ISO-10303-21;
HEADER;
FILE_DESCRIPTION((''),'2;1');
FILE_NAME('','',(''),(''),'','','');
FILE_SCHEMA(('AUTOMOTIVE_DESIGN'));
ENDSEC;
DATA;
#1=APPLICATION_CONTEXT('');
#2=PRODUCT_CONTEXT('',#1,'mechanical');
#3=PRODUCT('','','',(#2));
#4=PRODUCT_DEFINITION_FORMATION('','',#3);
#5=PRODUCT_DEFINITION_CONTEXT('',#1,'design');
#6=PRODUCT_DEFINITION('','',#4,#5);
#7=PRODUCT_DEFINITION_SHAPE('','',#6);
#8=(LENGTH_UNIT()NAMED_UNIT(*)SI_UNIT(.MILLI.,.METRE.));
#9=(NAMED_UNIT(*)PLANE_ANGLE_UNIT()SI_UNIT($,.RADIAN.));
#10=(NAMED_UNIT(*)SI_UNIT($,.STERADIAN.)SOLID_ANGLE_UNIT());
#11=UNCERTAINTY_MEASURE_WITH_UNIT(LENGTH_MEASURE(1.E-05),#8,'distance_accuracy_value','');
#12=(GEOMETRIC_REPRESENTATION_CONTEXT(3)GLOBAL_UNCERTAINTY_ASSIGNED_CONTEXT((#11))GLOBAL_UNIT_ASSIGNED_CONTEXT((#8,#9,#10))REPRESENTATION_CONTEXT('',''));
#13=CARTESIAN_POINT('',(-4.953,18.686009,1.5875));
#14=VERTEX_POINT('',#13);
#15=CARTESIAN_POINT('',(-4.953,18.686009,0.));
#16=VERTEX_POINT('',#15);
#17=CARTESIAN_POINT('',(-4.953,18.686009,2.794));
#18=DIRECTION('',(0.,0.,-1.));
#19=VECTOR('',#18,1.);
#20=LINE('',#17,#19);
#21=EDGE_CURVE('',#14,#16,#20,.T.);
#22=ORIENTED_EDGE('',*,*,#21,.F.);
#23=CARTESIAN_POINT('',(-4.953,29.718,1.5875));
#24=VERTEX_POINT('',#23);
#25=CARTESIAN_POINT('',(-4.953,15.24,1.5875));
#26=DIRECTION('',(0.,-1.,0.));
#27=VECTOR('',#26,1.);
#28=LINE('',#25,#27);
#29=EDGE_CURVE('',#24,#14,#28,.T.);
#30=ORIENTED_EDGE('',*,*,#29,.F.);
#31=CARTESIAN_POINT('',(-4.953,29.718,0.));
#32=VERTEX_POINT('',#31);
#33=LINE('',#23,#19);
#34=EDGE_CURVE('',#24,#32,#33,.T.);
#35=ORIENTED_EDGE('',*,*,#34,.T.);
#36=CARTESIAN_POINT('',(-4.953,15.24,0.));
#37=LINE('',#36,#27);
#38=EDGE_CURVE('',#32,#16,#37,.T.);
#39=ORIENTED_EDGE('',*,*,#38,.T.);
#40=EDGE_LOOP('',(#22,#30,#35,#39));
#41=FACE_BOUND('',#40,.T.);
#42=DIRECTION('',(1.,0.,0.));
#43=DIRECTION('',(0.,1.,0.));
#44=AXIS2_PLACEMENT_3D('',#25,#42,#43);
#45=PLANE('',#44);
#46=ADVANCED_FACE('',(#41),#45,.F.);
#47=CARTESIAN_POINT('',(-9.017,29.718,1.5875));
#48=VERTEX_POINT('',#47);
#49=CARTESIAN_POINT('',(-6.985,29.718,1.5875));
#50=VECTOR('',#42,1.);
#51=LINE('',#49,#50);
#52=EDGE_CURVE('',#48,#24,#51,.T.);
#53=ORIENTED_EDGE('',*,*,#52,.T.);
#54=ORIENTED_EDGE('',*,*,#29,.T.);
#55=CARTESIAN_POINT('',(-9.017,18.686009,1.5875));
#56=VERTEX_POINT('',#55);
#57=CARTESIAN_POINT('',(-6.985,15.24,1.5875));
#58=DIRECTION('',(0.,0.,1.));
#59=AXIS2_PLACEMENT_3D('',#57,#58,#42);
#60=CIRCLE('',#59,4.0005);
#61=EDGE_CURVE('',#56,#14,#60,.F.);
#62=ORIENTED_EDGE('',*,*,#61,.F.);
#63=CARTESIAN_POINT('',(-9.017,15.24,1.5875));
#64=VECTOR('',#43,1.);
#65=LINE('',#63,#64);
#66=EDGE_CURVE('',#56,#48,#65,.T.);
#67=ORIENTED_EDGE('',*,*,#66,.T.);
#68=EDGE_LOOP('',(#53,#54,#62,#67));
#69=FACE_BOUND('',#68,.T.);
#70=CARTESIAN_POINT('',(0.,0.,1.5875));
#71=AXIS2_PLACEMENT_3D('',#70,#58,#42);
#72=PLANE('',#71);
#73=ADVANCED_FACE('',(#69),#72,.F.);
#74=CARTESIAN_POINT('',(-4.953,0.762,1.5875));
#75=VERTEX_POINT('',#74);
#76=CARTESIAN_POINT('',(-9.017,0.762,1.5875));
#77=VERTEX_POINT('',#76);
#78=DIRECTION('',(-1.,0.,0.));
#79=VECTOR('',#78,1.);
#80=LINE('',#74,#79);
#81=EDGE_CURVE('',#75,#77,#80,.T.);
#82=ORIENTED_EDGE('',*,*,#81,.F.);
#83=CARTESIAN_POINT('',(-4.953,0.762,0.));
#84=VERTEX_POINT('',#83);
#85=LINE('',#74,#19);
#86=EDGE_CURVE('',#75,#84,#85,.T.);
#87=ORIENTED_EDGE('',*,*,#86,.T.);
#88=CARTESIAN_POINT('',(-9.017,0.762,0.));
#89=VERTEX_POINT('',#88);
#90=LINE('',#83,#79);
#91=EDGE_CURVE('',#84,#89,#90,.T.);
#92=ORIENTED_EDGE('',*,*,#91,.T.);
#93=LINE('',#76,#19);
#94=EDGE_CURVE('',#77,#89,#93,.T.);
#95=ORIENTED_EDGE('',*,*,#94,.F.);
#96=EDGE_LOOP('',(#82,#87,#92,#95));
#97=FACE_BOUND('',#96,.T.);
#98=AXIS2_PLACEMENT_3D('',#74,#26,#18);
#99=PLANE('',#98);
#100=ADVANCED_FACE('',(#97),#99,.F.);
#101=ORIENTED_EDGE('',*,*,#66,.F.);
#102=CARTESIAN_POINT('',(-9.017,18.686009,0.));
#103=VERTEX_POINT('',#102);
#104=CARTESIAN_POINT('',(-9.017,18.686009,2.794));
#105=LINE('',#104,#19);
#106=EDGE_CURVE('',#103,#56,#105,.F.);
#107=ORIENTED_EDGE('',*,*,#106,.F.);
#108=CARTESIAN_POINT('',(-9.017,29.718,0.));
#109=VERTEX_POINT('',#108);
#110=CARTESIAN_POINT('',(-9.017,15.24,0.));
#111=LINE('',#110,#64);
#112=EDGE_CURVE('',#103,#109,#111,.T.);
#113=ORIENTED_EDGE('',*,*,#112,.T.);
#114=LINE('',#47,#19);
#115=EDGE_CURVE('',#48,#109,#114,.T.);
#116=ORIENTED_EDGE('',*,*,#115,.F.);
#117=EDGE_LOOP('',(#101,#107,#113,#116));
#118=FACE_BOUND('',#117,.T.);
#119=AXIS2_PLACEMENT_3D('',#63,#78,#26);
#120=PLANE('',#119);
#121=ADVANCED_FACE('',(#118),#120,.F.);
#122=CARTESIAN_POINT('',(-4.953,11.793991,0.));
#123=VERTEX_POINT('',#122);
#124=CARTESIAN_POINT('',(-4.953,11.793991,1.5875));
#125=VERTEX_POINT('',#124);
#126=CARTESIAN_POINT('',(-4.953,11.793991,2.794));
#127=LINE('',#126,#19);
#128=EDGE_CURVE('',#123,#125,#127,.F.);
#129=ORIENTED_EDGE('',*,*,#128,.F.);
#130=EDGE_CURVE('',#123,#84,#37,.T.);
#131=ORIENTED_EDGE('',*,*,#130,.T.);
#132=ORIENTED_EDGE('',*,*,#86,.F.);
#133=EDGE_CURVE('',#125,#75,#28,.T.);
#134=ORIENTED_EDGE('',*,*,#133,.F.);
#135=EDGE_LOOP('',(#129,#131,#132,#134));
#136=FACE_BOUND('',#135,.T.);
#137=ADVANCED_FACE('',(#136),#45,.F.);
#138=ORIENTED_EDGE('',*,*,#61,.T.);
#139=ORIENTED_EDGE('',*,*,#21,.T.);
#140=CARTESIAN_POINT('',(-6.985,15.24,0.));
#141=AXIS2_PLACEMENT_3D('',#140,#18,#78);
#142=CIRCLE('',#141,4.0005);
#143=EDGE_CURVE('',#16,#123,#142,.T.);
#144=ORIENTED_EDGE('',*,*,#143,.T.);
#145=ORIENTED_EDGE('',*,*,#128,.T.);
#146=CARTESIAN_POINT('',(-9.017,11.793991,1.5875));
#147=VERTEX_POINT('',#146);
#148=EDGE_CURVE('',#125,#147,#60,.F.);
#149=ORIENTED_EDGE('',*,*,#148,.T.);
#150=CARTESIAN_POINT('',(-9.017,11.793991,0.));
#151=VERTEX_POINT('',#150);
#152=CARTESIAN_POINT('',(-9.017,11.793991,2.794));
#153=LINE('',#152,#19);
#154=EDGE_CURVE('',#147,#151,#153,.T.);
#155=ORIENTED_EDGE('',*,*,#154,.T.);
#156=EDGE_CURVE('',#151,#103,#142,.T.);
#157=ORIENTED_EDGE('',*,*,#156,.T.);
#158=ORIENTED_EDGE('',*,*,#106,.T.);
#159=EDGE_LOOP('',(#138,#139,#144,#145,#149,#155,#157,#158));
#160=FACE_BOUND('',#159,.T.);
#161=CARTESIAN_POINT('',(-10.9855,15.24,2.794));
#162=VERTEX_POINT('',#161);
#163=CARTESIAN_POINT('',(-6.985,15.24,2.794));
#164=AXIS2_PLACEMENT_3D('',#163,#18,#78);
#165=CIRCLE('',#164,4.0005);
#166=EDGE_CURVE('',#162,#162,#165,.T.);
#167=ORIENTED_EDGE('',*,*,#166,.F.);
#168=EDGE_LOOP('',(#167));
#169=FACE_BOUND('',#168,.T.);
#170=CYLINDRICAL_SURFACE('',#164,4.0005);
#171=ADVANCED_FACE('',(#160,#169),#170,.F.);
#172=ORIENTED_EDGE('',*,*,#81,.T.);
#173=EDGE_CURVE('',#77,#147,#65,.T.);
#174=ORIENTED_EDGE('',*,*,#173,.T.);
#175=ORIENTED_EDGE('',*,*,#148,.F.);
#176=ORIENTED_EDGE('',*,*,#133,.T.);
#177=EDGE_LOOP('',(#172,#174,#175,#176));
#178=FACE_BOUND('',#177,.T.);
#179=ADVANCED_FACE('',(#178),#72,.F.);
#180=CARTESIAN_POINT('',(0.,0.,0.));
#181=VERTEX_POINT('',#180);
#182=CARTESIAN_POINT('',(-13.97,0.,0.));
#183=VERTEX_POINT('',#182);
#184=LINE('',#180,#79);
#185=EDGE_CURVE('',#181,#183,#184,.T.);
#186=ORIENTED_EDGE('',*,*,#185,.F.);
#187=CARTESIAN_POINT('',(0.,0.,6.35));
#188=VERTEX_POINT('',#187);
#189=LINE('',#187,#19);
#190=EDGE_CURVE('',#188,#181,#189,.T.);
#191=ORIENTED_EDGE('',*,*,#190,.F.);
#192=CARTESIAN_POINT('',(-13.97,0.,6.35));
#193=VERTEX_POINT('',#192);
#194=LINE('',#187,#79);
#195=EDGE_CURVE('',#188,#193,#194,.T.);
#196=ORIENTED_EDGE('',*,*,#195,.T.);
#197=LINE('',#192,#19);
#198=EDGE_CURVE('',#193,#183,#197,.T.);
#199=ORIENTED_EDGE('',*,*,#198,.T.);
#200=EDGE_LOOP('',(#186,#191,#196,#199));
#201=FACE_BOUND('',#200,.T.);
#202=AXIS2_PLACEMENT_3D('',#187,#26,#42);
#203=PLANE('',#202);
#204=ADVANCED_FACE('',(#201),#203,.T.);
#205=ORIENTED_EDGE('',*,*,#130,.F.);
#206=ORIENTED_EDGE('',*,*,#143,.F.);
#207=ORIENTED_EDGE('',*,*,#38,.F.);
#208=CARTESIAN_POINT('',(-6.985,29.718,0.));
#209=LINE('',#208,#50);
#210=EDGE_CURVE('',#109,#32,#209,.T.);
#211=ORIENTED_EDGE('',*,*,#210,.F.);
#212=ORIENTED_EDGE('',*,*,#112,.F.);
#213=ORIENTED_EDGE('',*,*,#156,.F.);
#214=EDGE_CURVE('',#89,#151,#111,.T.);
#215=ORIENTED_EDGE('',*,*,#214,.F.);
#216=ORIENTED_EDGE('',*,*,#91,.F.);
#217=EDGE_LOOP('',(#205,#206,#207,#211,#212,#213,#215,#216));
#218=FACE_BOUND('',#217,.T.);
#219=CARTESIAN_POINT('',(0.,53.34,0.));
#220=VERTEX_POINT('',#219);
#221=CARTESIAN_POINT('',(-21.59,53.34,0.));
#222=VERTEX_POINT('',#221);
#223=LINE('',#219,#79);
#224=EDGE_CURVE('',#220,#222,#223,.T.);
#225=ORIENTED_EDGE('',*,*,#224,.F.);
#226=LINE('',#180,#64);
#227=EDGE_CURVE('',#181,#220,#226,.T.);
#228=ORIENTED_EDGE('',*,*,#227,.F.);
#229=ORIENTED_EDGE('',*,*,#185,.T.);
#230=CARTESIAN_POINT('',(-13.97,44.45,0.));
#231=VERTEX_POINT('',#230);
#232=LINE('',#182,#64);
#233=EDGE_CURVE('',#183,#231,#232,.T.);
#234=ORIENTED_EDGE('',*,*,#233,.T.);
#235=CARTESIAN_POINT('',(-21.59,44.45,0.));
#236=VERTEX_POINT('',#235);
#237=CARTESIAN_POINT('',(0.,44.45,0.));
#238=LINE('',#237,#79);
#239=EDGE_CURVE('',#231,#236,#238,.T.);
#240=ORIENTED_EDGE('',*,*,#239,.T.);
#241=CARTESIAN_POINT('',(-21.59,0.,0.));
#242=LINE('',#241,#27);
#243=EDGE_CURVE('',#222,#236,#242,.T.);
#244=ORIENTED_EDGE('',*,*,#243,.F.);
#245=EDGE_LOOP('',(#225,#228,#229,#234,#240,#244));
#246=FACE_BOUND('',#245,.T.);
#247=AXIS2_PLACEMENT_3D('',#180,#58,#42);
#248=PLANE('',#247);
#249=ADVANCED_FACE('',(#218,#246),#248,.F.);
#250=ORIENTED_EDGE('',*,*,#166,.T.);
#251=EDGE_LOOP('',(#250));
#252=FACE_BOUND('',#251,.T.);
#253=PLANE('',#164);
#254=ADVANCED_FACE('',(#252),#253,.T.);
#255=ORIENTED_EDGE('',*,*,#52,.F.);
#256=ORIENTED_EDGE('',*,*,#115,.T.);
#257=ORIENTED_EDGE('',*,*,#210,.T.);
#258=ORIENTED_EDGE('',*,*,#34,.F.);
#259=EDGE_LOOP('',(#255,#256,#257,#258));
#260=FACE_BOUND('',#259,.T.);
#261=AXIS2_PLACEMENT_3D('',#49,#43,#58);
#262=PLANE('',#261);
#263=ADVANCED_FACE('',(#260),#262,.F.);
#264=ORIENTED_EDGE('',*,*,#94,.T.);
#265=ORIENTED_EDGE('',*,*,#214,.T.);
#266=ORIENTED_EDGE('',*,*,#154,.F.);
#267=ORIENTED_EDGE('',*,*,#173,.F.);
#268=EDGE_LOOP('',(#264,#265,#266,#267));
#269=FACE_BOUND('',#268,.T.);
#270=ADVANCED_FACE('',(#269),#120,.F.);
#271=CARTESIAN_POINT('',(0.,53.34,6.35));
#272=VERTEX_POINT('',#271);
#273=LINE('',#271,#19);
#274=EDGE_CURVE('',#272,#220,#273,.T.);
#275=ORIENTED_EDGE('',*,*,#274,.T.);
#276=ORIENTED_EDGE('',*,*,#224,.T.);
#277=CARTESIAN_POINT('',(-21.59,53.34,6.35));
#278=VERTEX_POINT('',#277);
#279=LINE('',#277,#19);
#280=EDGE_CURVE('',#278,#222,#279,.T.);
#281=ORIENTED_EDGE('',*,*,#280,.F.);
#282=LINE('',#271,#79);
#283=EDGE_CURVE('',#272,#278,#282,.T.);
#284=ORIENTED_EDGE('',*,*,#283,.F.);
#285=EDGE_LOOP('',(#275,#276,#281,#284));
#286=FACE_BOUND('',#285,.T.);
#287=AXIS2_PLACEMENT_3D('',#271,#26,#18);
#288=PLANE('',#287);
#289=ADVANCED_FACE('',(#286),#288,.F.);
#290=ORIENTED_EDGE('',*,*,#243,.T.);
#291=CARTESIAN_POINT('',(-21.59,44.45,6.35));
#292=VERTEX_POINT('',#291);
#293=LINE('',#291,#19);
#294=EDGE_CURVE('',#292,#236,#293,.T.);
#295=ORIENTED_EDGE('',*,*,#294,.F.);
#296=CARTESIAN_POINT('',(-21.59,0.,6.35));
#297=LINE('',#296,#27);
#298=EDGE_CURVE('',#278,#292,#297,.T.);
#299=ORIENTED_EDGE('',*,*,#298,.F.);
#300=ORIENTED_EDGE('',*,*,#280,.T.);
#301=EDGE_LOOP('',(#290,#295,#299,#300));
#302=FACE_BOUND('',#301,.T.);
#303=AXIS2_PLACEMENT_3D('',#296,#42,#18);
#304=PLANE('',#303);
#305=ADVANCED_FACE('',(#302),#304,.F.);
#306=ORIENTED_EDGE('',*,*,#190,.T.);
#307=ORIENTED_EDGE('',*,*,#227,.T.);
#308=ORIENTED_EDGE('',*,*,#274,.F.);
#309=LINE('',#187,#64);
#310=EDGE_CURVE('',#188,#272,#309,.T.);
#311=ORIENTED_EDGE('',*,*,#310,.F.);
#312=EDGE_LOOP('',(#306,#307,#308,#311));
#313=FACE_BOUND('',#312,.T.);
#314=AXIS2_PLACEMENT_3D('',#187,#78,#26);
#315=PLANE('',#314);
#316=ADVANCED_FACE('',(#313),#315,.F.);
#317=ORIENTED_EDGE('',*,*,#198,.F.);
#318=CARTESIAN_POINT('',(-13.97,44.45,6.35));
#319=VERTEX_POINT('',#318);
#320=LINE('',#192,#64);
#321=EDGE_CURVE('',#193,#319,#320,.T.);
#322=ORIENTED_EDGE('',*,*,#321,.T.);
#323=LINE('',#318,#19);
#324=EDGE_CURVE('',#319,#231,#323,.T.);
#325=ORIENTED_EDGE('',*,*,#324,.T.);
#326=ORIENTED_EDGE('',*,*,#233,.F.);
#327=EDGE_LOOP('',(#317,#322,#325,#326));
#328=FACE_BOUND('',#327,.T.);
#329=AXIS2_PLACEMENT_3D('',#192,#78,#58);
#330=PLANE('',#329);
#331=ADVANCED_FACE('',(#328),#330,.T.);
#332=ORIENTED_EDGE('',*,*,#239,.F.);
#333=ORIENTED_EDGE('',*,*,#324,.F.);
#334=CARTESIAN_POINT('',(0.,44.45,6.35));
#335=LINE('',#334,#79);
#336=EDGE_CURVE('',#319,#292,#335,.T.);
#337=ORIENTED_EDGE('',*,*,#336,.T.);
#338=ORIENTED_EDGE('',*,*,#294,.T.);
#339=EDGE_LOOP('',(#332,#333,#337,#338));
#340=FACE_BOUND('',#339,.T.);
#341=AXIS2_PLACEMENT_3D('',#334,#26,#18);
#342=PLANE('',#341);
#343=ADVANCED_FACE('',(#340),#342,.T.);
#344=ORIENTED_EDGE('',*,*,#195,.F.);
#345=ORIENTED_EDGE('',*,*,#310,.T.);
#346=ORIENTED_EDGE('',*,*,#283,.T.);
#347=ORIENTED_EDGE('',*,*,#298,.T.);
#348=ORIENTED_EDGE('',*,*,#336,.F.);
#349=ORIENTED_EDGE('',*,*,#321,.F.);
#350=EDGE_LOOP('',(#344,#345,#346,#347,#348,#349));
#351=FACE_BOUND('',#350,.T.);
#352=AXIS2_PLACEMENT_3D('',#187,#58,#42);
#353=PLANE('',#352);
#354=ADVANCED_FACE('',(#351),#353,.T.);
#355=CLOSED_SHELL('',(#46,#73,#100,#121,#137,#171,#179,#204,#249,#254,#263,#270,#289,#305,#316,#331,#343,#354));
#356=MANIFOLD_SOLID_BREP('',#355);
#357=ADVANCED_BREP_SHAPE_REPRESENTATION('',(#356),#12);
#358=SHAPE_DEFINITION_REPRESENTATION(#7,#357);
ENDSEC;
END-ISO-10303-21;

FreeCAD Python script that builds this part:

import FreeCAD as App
import Part
import Sketcher
from FreeCAD import Vector
Q = App.Units.Quantity


def add_polygon(sketch, points):
    """Adds a closed chain of lines whose ends are joined by coincident constraints."""
    first, n = sketch.GeometryCount, len(points)
    for a, b in zip(points, points[1:] + points[:1]):
        sketch.addGeometry(Part.LineSegment(App.Vector(*a, 0), App.Vector(*b, 0)), False)
    for i in range(n):
        sketch.addConstraint(Sketcher.Constraint("Coincident", first + i, 2, first + (i + 1) % n, 1))

doc = App.newDocument("Part")
body = doc.addObject("PartDesign::Body", "Body")

# Sketch on XY plane
sketch1 = body.newObject("Sketcher::SketchObject", "Sketch")
sketch1.AttachmentSupport = (doc.getObject("XY_Plane"), [""])
sketch1.MapMode = "FlatFace"
add_polygon(sketch1, [(-21.59, 53.34), (-21.59, 44.45), (-13.97, 44.45), (-13.97, 0), (0, 0), (0, 53.34)])  # lines 0-5
sketch1.addConstraint(Sketcher.Constraint("Vertical", 0))
sketch1.addConstraint(Sketcher.Constraint("Horizontal", 1))
sketch1.addConstraint(Sketcher.Constraint("Vertical", 2))
sketch1.addConstraint(Sketcher.Constraint("Horizontal", 3))
sketch1.addConstraint(Sketcher.Constraint("Vertical", 4))
sketch1.addConstraint(Sketcher.Constraint("Horizontal", 5))
sketch1.addConstraint(Sketcher.Constraint("Coincident", 3, 2, -1, 1))
sketch1.addConstraint(Sketcher.Constraint("DistanceX", 1, 1, 1, 2, Q("0.3 in")))
sketch1.addConstraint(Sketcher.Constraint("DistanceY", 4, 1, 4, 2, Q("2.1 in")))
sketch1.addConstraint(Sketcher.Constraint("DistanceX", 3, 1, 3, 2, Q("0.55 in")))
sketch1.addConstraint(Sketcher.Constraint("DistanceY", 0, 2, 0, 1, Q("0.35 in")))
pad1 = body.newObject("PartDesign::Pad", "Pad")
pad1.Profile = sketch1
pad1.Length = Q("0.25 in")

# Sketch on XY plane
sketch2 = body.newObject("Sketcher::SketchObject", "Sketch001")
sketch2.AttachmentSupport = (doc.getObject("XY_Plane"), [""])
sketch2.MapMode = "FlatFace"
sketch2.addGeometry(Part.Circle(Vector(-6.985, 15.24, 0), Vector(0, 0, 1), 4.0005), False)
sketch2.addConstraint(Sketcher.Constraint("Diameter", 0, Q("0.315 in")))
sketch2.addConstraint(Sketcher.Constraint("DistanceY", -1, 1, 0, 3, Q("0.6 in")))
sketch2.addConstraint(Sketcher.Constraint("DistanceX", 0, 3, -1, 1, Q("0.275 in")))
pocket1 = body.newObject("PartDesign::Pocket", "Pocket")
pocket1.Profile = sketch2
pocket1.Length = Q("0.11 in")
pocket1.Reversed = True

# Sketch on XY plane
sketch3 = body.newObject("Sketcher::SketchObject", "Sketch002")
sketch3.AttachmentSupport = (doc.getObject("XY_Plane"), [""])
sketch3.MapMode = "FlatFace"
add_polygon(sketch3, [(-9.017, 29.718), (-4.953, 29.718), (-4.953, 0.762), (-9.017, 0.762)])  # lines 0-3
sketch3.addConstraint(Sketcher.Constraint("Horizontal", 0))
sketch3.addConstraint(Sketcher.Constraint("Vertical", 1))
sketch3.addConstraint(Sketcher.Constraint("Horizontal", 2))
sketch3.addConstraint(Sketcher.Constraint("Vertical", 3))
sketch3.addConstraint(Sketcher.Constraint("DistanceX", 0, 1, 0, 2, Q("0.16 in")))
sketch3.addConstraint(Sketcher.Constraint("DistanceY", 1, 2, 1, 1, Q("1.14 in")))
sketch3.addConstraint(Sketcher.Constraint("DistanceY", -1, 1, 0, 2, Q("1.17 in")))
sketch3.addConstraint(Sketcher.Constraint("DistanceX", 0, 2, -1, 1, Q("0.195 in")))
pocket2 = body.newObject("PartDesign::Pocket", "Pocket001")
pocket2.Profile = sketch3
pocket2.Length = Q("0.0625 in")
pocket2.Reversed = True

doc.recompute()
